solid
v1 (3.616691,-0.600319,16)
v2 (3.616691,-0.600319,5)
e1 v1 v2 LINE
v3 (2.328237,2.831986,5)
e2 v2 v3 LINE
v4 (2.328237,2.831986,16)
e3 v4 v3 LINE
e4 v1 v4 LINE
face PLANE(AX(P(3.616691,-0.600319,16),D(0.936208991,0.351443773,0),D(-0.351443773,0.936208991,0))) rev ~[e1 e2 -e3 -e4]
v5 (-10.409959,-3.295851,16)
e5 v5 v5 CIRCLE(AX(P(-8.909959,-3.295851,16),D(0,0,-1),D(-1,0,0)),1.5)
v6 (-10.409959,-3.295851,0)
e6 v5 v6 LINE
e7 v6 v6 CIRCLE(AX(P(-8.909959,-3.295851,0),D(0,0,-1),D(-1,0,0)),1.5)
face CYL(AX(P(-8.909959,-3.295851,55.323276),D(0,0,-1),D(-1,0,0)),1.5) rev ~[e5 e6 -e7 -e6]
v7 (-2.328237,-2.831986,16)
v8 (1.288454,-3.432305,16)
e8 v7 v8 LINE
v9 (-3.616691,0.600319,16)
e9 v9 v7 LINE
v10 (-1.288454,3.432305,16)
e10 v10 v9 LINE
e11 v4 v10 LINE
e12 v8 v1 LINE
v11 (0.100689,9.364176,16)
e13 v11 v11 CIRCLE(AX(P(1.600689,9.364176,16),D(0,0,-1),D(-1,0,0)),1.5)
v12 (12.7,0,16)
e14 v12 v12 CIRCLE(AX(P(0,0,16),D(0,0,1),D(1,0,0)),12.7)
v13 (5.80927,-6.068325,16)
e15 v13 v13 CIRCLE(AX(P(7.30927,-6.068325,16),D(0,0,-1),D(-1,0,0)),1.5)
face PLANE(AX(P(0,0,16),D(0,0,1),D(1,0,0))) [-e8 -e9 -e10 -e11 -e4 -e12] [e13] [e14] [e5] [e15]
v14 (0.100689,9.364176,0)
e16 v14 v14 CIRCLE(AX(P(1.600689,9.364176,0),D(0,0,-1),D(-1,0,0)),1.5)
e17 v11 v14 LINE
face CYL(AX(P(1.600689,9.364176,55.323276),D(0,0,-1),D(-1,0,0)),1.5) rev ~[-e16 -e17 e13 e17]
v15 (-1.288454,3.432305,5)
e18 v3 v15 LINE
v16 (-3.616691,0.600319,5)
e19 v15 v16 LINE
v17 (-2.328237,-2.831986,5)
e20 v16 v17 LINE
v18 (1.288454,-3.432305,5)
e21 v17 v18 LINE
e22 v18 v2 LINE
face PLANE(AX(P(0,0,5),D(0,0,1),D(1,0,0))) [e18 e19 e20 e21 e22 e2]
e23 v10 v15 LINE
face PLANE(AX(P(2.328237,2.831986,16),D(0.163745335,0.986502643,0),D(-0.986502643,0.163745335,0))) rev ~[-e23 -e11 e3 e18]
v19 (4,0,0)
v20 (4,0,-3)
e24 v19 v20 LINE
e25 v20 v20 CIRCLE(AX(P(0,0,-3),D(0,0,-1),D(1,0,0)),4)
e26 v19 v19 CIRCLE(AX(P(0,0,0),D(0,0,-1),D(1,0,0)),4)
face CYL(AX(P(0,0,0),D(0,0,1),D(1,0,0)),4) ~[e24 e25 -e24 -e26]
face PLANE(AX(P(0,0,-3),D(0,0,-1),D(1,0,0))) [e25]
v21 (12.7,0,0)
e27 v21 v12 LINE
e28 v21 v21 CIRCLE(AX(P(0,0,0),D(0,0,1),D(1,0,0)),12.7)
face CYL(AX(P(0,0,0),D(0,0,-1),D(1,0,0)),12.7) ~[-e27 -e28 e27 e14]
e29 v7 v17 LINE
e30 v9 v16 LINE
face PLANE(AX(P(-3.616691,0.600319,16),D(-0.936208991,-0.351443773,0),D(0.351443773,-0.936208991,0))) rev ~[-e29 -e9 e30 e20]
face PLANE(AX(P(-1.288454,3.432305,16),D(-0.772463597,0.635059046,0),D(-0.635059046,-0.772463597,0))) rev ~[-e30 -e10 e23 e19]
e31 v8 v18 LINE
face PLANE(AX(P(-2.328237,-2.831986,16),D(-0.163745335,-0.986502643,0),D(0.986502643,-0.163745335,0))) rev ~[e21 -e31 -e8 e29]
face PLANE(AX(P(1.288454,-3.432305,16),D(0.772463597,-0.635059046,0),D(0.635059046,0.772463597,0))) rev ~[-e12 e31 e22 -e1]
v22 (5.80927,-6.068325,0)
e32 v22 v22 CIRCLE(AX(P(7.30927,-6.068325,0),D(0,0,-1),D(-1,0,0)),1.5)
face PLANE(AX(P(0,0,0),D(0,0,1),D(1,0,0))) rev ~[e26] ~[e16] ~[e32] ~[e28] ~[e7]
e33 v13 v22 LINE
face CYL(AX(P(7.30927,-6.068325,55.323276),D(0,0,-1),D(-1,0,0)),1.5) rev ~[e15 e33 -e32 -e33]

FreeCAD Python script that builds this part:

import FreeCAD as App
import Part
import Sketcher

V = App.Vector


def add_polygon(sketch, points):
    """Adds a closed chain of lines whose ends are joined by coincident constraints."""
    first, n = sketch.GeometryCount, len(points)
    for a, b in zip(points, points[1:] + points[:1]):
        sketch.addGeometry(Part.LineSegment(App.Vector(*a, 0), App.Vector(*b, 0)), False)
    for i in range(n):
        sketch.addConstraint(Sketcher.Constraint("Coincident", first + i, 2, first + (i + 1) % n, 1))

doc = App.newDocument("Part")
body = doc.addObject("PartDesign::Body", "Body")

# Sketch on XY plane
sketch1 = body.newObject("Sketcher::SketchObject", "Sketch")
sketch1.AttachmentSupport = (doc.getObject("XY_Plane"), [""])
sketch1.MapMode = "FlatFace"
sketch1.addGeometry(Part.Circle(V(0, 0, 0), V(0, 0, 1), 13), False)
sketch1.addConstraint(Sketcher.Constraint("Coincident", 0, 3, -1, 1))
sketch1.addConstraint(Sketcher.Constraint("Diameter", 0, 25.4))
pad1 = body.newObject("PartDesign::Pad", "Pad")
pad1.Profile = sketch1
pad1.Length = 16

# Sketch on XY plane
sketch2 = body.newObject("Sketcher::SketchObject", "Sketch001")
sketch2.AttachmentSupport = (doc.getObject("XY_Plane"), [""])
sketch2.MapMode = "FlatFace"
sketch2.AttachmentOffset = App.Placement(V(0, 0, 16), App.Rotation())
sketch2.addGeometry(Part.Circle(V(-8.9, -3.3, 0), V(0, 0, 1), 1.5), False)
sketch2.addGeometry(Part.Circle(V(1.6, 9.4, 0), V(0, 0, 1), 1.5), False)
sketch2.addGeometry(Part.Circle(V(7.3, -6.1, 0), V(0, 0, 1), 1.5), False)
sketch2.addConstraint(Sketcher.Constraint("Equal", 0, 1))
sketch2.addConstraint(Sketcher.Constraint("Equal", 1, 2))
sketch2.addConstraint(Sketcher.Constraint("Diameter", 0, 3.0))
sketch2.addConstraint(Sketcher.Constraint("DistanceY", 2, 3, 1, 3, 15.432501))
sketch2.addConstraint(Sketcher.Constraint("DistanceX", 0, 3, -1, 1, 8.909959))
sketch2.addConstraint(Sketcher.Constraint("DistanceY", 0, 3, -1, 1, 3.295851))
sketch2.addConstraint(Sketcher.Constraint("DistanceX", -1, 1, 1, 3, 1.600689))
sketch2.addConstraint(Sketcher.Constraint("DistanceX", -1, 1, 2, 3, 7.30927))
sketch2.addConstraint(Sketcher.Constraint("DistanceY", -1, 1, 1, 3, 9.364176))
doc.recompute()
hole = body.newObject("PartDesign::Hole", "Hole")
hole.Profile = sketch2
hole.ThreadType = "None"
hole.Diameter = 3
hole.DepthType = "ThroughAll"

# Sketch on XY plane
sketch3 = body.newObject("Sketcher::SketchObject", "Sketch002")
sketch3.AttachmentSupport = (doc.getObject("XY_Plane"), [""])
sketch3.MapMode = "FlatFace"
sketch3.AttachmentOffset = App.Placement(V(0, 0, 16), App.Rotation())
add_polygon(sketch3, [(3.6, -0.6), (2.3, 2.8), (-1.3, 3.4), (-3.6, 0.6), (-2.3, -2.8), (1.3, -3.4)])  # lines 0-5
sketch3.addConstraint(Sketcher.Constraint("Symmetric", 0, 2, 3, 2, -1, 1))
sketch3.addConstraint(Sketcher.Constraint("Symmetric", 1, 2, 4, 2, -1, 1))
sketch3.addConstraint(Sketcher.Constraint("Symmetric", 2, 2, 5, 2, -1, 1))
sketch3.addConstraint(Sketcher.Constraint("Equal", 0, 1))
sketch3.addConstraint(Sketcher.Constraint("Equal", 1, 2))
sketch3.addConstraint(Sketcher.Constraint("DistanceX", 2, 2, -1, 1, 3.616691))
sketch3.addConstraint(Sketcher.Constraint("DistanceY", -1, 1, 2, 2, 0.600319))
sketch3.addConstraint(Sketcher.Constraint("DistanceX", 1, 2, 0, 2, 3.616691))
sketch3.addConstraint(Sketcher.Constraint("DistanceY", 0, 2, 1, 2, 0.600319))
pocket1 = body.newObject("PartDesign::Pocket", "Pocket")
pocket1.Profile = sketch3
pocket1.Length = 11

# Sketch on XY plane
sketch4 = body.newObject("Sketcher::SketchObject", "Sketch003")
sketch4.AttachmentSupport = (doc.getObject("XY_Plane"), [""])
sketch4.MapMode = "FlatFace"
sketch4.addGeometry(Part.Circle(V(0, 0, 0), V(0, 0, 1), 4), False)
sketch4.addConstraint(Sketcher.Constraint("Coincident", 0, 3, -1, 1))
sketch4.addConstraint(Sketcher.Constraint("Diameter", 0, 8.0))
pad2 = body.newObject("PartDesign::Pad", "Pad001")
pad2.Profile = sketch4
pad2.Length = 3
pad2.Reversed = True

doc.recompute()
